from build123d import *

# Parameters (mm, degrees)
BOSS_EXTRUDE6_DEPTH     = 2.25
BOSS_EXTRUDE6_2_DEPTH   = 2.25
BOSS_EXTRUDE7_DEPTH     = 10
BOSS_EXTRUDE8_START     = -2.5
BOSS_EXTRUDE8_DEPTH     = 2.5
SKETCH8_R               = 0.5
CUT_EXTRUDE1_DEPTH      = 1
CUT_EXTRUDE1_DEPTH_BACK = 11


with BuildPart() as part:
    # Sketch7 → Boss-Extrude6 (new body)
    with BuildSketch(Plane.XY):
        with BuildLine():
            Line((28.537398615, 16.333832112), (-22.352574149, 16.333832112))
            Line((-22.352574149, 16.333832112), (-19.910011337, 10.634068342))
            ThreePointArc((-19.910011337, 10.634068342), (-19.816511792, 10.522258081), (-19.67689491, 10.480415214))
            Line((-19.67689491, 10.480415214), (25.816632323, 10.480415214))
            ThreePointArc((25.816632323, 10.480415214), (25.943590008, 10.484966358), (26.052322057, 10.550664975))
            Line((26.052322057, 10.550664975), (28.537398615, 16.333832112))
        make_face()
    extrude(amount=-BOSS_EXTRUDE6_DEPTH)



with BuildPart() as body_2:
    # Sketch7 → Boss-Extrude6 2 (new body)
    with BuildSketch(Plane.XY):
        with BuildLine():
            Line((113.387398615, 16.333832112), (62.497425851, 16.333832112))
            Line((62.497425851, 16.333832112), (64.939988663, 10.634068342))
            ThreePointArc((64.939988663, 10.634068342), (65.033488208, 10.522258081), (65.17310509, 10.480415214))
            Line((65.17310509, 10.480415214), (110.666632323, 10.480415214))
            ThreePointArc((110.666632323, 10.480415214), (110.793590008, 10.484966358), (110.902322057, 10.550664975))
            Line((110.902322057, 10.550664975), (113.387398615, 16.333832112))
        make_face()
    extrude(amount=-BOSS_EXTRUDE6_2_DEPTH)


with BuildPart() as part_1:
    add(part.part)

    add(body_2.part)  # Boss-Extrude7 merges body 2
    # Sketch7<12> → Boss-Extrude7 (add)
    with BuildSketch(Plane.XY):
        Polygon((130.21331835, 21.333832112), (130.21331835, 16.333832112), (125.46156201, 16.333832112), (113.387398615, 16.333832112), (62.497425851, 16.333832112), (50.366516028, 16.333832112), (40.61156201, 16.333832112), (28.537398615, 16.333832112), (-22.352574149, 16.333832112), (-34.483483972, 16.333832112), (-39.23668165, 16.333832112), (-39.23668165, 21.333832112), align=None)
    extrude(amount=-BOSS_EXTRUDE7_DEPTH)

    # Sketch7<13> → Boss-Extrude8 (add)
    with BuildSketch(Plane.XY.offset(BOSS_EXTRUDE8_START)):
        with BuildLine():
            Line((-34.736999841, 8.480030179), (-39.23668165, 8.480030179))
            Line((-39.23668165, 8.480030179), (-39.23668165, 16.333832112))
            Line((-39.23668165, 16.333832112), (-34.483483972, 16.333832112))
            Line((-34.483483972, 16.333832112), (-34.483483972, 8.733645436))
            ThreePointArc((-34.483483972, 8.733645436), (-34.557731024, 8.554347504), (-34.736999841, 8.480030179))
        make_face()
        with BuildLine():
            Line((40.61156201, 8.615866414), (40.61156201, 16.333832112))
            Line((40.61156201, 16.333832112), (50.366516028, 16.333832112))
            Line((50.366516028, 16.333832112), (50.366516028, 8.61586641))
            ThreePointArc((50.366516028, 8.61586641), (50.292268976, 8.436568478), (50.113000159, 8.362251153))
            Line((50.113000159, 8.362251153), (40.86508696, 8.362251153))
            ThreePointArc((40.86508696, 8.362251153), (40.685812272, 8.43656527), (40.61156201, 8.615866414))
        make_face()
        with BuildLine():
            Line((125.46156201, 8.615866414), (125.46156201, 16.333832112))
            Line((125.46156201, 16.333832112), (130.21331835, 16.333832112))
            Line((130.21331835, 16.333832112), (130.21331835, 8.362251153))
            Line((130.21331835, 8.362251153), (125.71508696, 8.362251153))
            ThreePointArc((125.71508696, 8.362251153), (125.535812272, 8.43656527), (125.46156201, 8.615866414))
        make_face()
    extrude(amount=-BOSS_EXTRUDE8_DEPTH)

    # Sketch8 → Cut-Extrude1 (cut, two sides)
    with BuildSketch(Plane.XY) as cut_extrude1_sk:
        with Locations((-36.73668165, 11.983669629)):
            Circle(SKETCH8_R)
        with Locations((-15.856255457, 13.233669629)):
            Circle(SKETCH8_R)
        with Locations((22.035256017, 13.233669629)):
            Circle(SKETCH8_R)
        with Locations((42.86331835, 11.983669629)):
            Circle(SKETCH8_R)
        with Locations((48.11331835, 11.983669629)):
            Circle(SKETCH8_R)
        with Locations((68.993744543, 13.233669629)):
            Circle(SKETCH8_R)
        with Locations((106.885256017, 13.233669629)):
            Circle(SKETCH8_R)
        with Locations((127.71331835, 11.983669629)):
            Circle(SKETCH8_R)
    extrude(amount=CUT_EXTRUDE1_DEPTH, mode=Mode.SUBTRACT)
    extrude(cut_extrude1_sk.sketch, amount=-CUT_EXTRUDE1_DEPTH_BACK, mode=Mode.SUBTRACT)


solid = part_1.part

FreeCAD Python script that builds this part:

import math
import FreeCAD as App
import Part
import Sketcher
from FreeCAD import Vector


def add_polygon(sketch, points):
    """Adds a closed chain of lines whose ends are joined by coincident constraints."""
    first, n = sketch.GeometryCount, len(points)
    for a, b in zip(points, points[1:] + points[:1]):
        sketch.addGeometry(Part.LineSegment(App.Vector(*a, 0), App.Vector(*b, 0)), False)
    for i in range(n):
        sketch.addConstraint(Sketcher.Constraint("Coincident", first + i, 2, first + (i + 1) % n, 1))

doc = App.newDocument("Part")
body = doc.addObject("PartDesign::Body", "Body")

# Sketch on XY plane
sketch1 = body.newObject("Sketcher::SketchObject", "Sketch")
sketch1.AttachmentSupport = (doc.getObject("XY_Plane"), [""])
sketch1.MapMode = "FlatFace"
sketch1.addGeometry(Part.LineSegment(Vector(28.54, 16.33, 0), Vector(-22.35, 16.33, 0)), False)
sketch1.addGeometry(Part.LineSegment(Vector(-22.35, 16.33, 0), Vector(-19.91, 10.63, 0)), False)
sketch1.addGeometry(Part.ArcOfCircle(Part.Circle(Vector(-19.68, 10.73, 0), Vector(0, 0, 1), 0.25), math.radians(-157), math.radians(-90)), False)
sketch1.addGeometry(Part.LineSegment(Vector(-19.68, 10.48, 0), Vector(25.82, 10.48, 0)), False)
sketch1.addGeometry(Part.ArcOfCircle(Part.Circle(Vector(25.87, 10.73, 0), Vector(0, 0, 1), 0.25), math.radians(-102), math.radians(-44)), False)
sketch1.addGeometry(Part.LineSegment(Vector(26.05, 10.55, 0), Vector(28.54, 16.33, 0)), False)
sketch1.addConstraint(Sketcher.Constraint("Coincident", 0, 2, 1, 1))
sketch1.addConstraint(Sketcher.Constraint("Tangent", 1, 2, 2, 1))
sketch1.addConstraint(Sketcher.Constraint("Coincident", 2, 2, 3, 1))
sketch1.addConstraint(Sketcher.Constraint("Coincident", 3, 2, 4, 1))
sketch1.addConstraint(Sketcher.Constraint("Coincident", 4, 2, 5, 1))
sketch1.addConstraint(Sketcher.Constraint("Coincident", 5, 2, 0, 1))
sketch1.addConstraint(Sketcher.Constraint("Horizontal", 0))
sketch1.addConstraint(Sketcher.Constraint("Horizontal", 3))
sketch1.addConstraint(Sketcher.Constraint("Radius", 2, 0.253508))
sketch1.addConstraint(Sketcher.Constraint("Radius", 4, 0.252939))
sketch1.addConstraint(Sketcher.Constraint("DistanceX", -1, 1, 5, 2, 28.537399))
sketch1.addConstraint(Sketcher.Constraint("DistanceY", 1, 2, 4, 3, 0.093298))
sketch1.addConstraint(Sketcher.Constraint("DistanceY", 4, 2, 4, 3, 0.176702))
sketch1.addConstraint(Sketcher.Constraint("Distance", 5, 6.294492))
sketch1.addConstraint(Sketcher.Constraint("DistanceX", 0, 2, 0, 1, 50.889973))
sketch1.addConstraint(Sketcher.Constraint("DistanceX", 3, 1, 3, 2, 45.493527))
sketch1.addConstraint(Sketcher.Constraint("DistanceX", -1, 1, 4, 3, 25.87134))
sketch1.addConstraint(Sketcher.Constraint("DistanceX", 1, 2, -1, 1, 19.910011))
sketch1.addConstraint(Sketcher.Constraint("DistanceY", -1, 1, 1, 2, 10.634068))
pad1 = body.newObject("PartDesign::Pad", "Pad")
pad1.Profile = sketch1
pad1.Length = 2.25
pad1.Reversed = True
body2 = doc.addObject("PartDesign::Body", "Body001")

# Sketch on XY plane
sketch2 = body2.newObject("Sketcher::SketchObject", "Sketch001")
sketch2.AttachmentSupport = (doc.getObject("XY_Plane001"), [""])
sketch2.MapMode = "FlatFace"
sketch2.addGeometry(Part.LineSegment(Vector(113.39, 16.33, 0), Vector(62.5, 16.33, 0)), False)
sketch2.addGeometry(Part.LineSegment(Vector(62.5, 16.33, 0), Vector(64.94, 10.63, 0)), False)
sketch2.addGeometry(Part.ArcOfCircle(Part.Circle(Vector(65.17, 10.73, 0), Vector(0, 0, 1), 0.25), math.radians(-157), math.radians(-90)), False)
sketch2.addGeometry(Part.LineSegment(Vector(65.17, 10.48, 0), Vector(110.67, 10.48, 0)), False)
sketch2.addGeometry(Part.ArcOfCircle(Part.Circle(Vector(110.72, 10.73, 0), Vector(0, 0, 1), 0.25), math.radians(-102), math.radians(-44)), False)
sketch2.addGeometry(Part.LineSegment(Vector(110.9, 10.55, 0), Vector(113.39, 16.33, 0)), False)
sketch2.addConstraint(Sketcher.Constraint("Coincident", 0, 2, 1, 1))
sketch2.addConstraint(Sketcher.Constraint("Tangent", 1, 2, 2, 1))
sketch2.addConstraint(Sketcher.Constraint("Coincident", 2, 2, 3, 1))
sketch2.addConstraint(Sketcher.Constraint("Coincident", 3, 2, 4, 1))
sketch2.addConstraint(Sketcher.Constraint("Coincident", 4, 2, 5, 1))
sketch2.addConstraint(Sketcher.Constraint("Coincident", 5, 2, 0, 1))
sketch2.addConstraint(Sketcher.Constraint("Horizontal", 0))
sketch2.addConstraint(Sketcher.Constraint("Horizontal", 3))
sketch2.addConstraint(Sketcher.Constraint("Radius", 2, 0.253508))
sketch2.addConstraint(Sketcher.Constraint("Radius", 4, 0.252939))
sketch2.addConstraint(Sketcher.Constraint("DistanceX", -1, 1, 5, 2, 113.387399))
sketch2.addConstraint(Sketcher.Constraint("DistanceY", 1, 2, 4, 3, 0.093298))
sketch2.addConstraint(Sketcher.Constraint("DistanceY", 4, 2, 4, 3, 0.176702))
sketch2.addConstraint(Sketcher.Constraint("Distance", 5, 6.294492))
sketch2.addConstraint(Sketcher.Constraint("DistanceX", 0, 2, 0, 1, 50.889973))
sketch2.addConstraint(Sketcher.Constraint("DistanceX", 3, 1, 3, 2, 45.493527))
sketch2.addConstraint(Sketcher.Constraint("DistanceX", -1, 1, 4, 3, 110.72134))
sketch2.addConstraint(Sketcher.Constraint("DistanceX", -1, 1, 1, 2, 64.939989))
sketch2.addConstraint(Sketcher.Constraint("DistanceY", -1, 1, 1, 2, 10.634068))
pad2 = body2.newObject("PartDesign::Pad", "Pad001")
pad2.Profile = sketch2
pad2.Length = 2.25
pad2.Reversed = True
body.AllowCompound = True
doc.recompute()

boolean = body.newObject("PartDesign::Boolean", "Boolean")
boolean.Type = "Fuse"
boolean.addObjects([body2])

# Sketch on XY plane
sketch3 = body.newObject("Sketcher::SketchObject", "Sketch002")
sketch3.AttachmentSupport = (doc.getObject("XY_Plane"), [""])
sketch3.MapMode = "FlatFace"
add_polygon(sketch3, [(130, 16), (130, 21), (-39, 21), (-39, 16)])  # lines 0-3
sketch3.addConstraint(Sketcher.Constraint("Vertical", 0))
sketch3.addConstraint(Sketcher.Constraint("Horizontal", 1))
sketch3.addConstraint(Sketcher.Constraint("Vertical", 2))
sketch3.addConstraint(Sketcher.Constraint("Horizontal", 3))
sketch3.addConstraint(Sketcher.Constraint("DistanceY", 0, 1, 0, 2, 5.0))
sketch3.addConstraint(Sketcher.Constraint("DistanceX", 1, 2, 1, 1, 169.45))
sketch3.addConstraint(Sketcher.Constraint("DistanceX", -1, 1, 0, 2, 130.213318))
sketch3.addConstraint(Sketcher.Constraint("DistanceY", -1, 1, 0, 2, 21.333832))
pad3 = body.newObject("PartDesign::Pad", "Pad002")
pad3.Profile = sketch3
pad3.Length = 10
pad3.Reversed = True

# Sketch on XY plane
sketch4 = body.newObject("Sketcher::SketchObject", "Sketch003")
sketch4.AttachmentSupport = (doc.getObject("XY_Plane"), [""])
sketch4.MapMode = "FlatFace"
sketch4.AttachmentOffset = App.Placement(Vector(0, 0, -2.5), App.Rotation())
sketch4.addGeometry(Part.LineSegment(Vector(-39.24, 8.48, 0), Vector(-34.74, 8.48, 0)), False)
sketch4.addGeometry(Part.ArcOfCircle(Part.Circle(Vector(-34.74, 8.73, 0), Vector(0, 0, 1), 0.25), math.radians(-90), math.radians(0)), False)
sketch4.addGeometry(Part.LineSegment(Vector(-34.48, 8.73, 0), Vector(-34.48, 16.33, 0)), False)
sketch4.addGeometry(Part.LineSegment(Vector(-34.48, 16.33, 0), Vector(-39.24, 16.33, 0)), False)
sketch4.addGeometry(Part.LineSegment(Vector(-39.24, 16.33, 0), Vector(-39.24, 8.48, 0)), False)
sketch4.addGeometry(Part.LineSegment(Vector(40.61, 16.33, 0), Vector(40.61, 8.62, 0)), False)
sketch4.addGeometry(Part.ArcOfCircle(Part.Circle(Vector(40.87, 8.62, 0), Vector(0, 0, 1), 0.25), math.radians(180), math.radians(270)), False)
sketch4.addGeometry(Part.LineSegment(Vector(40.87, 8.36, 0), Vector(50.11, 8.36, 0)), False)
sketch4.addGeometry(Part.ArcOfCircle(Part.Circle(Vector(50.11, 8.62, 0), Vector(0, 0, 1), 0.25), math.radians(-90), math.radians(0)), False)
sketch4.addGeometry(Part.LineSegment(Vector(50.37, 8.62, 0), Vector(50.37, 16.33, 0)), False)
sketch4.addGeometry(Part.LineSegment(Vector(50.37, 16.33, 0), Vector(40.61, 16.33, 0)), False)
sketch4.addGeometry(Part.LineSegment(Vector(125.46, 16.33, 0), Vector(125.46, 8.62, 0)), False)
sketch4.addGeometry(Part.ArcOfCircle(Part.Circle(Vector(125.72, 8.62, 0), Vector(0, 0, 1), 0.25), math.radians(180), math.radians(270)), False)
sketch4.addGeometry(Part.LineSegment(Vector(125.72, 8.36, 0), Vector(130.21, 8.36, 0)), False)
sketch4.addGeometry(Part.LineSegment(Vector(130.21, 8.36, 0), Vector(130.21, 16.33, 0)), False)
sketch4.addGeometry(Part.LineSegment(Vector(130.21, 16.33, 0), Vector(125.46, 16.33, 0)), False)
sketch4.addConstraint(Sketcher.Constraint("Coincident", 0, 2, 1, 1))
sketch4.addConstraint(Sketcher.Constraint("Tangent", 1, 2, 2, 1))
sketch4.addConstraint(Sketcher.Constraint("Coincident", 2, 2, 3, 1))
sketch4.addConstraint(Sketcher.Constraint("Coincident", 3, 2, 4, 1))
sketch4.addConstraint(Sketcher.Constraint("Coincident", 4, 2, 0, 1))
sketch4.addConstraint(Sketcher.Constraint("Tangent", 5, 2, 6, 1))
sketch4.addConstraint(Sketcher.Constraint("Coincident", 6, 2, 7, 1))
sketch4.addConstraint(Sketcher.Constraint("Coincident", 7, 2, 8, 1))
sketch4.addConstraint(Sketcher.Constraint("Tangent", 8, 2, 9, 1))
sketch4.addConstraint(Sketcher.Constraint("Coincident", 9, 2, 10, 1))
sketch4.addConstraint(Sketcher.Constraint("Coincident", 10, 2, 5, 1))
sketch4.addConstraint(Sketcher.Constraint("Tangent", 11, 2, 12, 1))
sketch4.addConstraint(Sketcher.Constraint("Coincident", 12, 2, 13, 1))
sketch4.addConstraint(Sketcher.Constraint("Coincident", 13, 2, 14, 1))
sketch4.addConstraint(Sketcher.Constraint("Coincident", 14, 2, 15, 1))
sketch4.addConstraint(Sketcher.Constraint("Coincident", 15, 2, 11, 1))
sketch4.addConstraint(Sketcher.Constraint("Horizontal", 0))
sketch4.addConstraint(Sketcher.Constraint("Vertical", 2))
sketch4.addConstraint(Sketcher.Constraint("Horizontal", 3))
sketch4.addConstraint(Sketcher.Constraint("Vertical", 4))
sketch4.addConstraint(Sketcher.Constraint("Vertical", 5))
sketch4.addConstraint(Sketcher.Constraint("Horizontal", 7))
sketch4.addConstraint(Sketcher.Constraint("Vertical", 9))
sketch4.addConstraint(Sketcher.Constraint("Horizontal", 10))
sketch4.addConstraint(Sketcher.Constraint("Vertical", 11))
sketch4.addConstraint(Sketcher.Constraint("Horizontal", 13))
sketch4.addConstraint(Sketcher.Constraint("Vertical", 14))
sketch4.addConstraint(Sketcher.Constraint("Horizontal", 15))
sketch4.addConstraint(Sketcher.Constraint("Equal", 1, 6))
sketch4.addConstraint(Sketcher.Constraint("Equal", 6, 8))
sketch4.addConstraint(Sketcher.Constraint("Equal", 8, 12))
sketch4.addConstraint(Sketcher.Constraint("Horizontal", 8, 3, 12, 3))
sketch4.addConstraint(Sketcher.Constraint("Horizontal", 3, 2, 9, 2))
sketch4.addConstraint(Sketcher.Constraint("Horizontal", 10, 2, 14, 2))
sketch4.addConstraint(Sketcher.Constraint("DistanceX", 1, 3, 8, 3, 84.85))
sketch4.addConstraint(Sketcher.Constraint("DistanceX", 6, 3, 12, 3, 84.85))
sketch4.addConstraint(Sketcher.Constraint("DistanceY", 4, 2, 4, 1, 7.853802))
sketch4.addConstraint(Sketcher.Constraint("DistanceX", 0, 2, -1, 1, 34.737))
sketch4.addConstraint(Sketcher.Constraint("DistanceX", -1, 1, 7, 2, 50.113))
sketch4.addConstraint(Sketcher.Constraint("Radius", 1, 0.253615))
sketch4.addConstraint(Sketcher.Constraint("DistanceX", 0, 1, 0, 2, 4.499682))
sketch4.addConstraint(Sketcher.Constraint("DistanceX", 13, 1, 13, 2, 4.498231))
sketch4.addConstraint(Sketcher.Constraint("DistanceY", 14, 1, 14, 2, 7.971581))
sketch4.addConstraint(Sketcher.Constraint("DistanceX", 1, 3, -1, 1, 34.737099))
sketch4.addConstraint(Sketcher.Constraint("DistanceX", 7, 1, 7, 2, 9.247913))
sketch4.addConstraint(Sketcher.Constraint("DistanceX", 10, 2, 10, 1, 9.754954))
sketch4.addConstraint(Sketcher.Constraint("DistanceX", 15, 2, 15, 1, 4.751756))
sketch4.addConstraint(Sketcher.Constraint("DistanceY", -1, 1, 0, 2, 8.48003))
pad4 = body.newObject("PartDesign::Pad", "Pad003")
pad4.Profile = sketch4
pad4.Length = 2.5
pad4.Reversed = True

# Sketch on XY plane
sketch5 = body.newObject("Sketcher::SketchObject", "Sketch004")
sketch5.AttachmentSupport = (doc.getObject("XY_Plane"), [""])
sketch5.MapMode = "FlatFace"
sketch5.addGeometry(Part.Circle(Vector(-36.7, 12, 0), Vector(0, 0, 1), 0.5), False)
sketch5.addGeometry(Part.Circle(Vector(-15.9, 13.2, 0), Vector(0, 0, 1), 0.5), False)
sketch5.addGeometry(Part.Circle(Vector(22, 13.2, 0), Vector(0, 0, 1), 0.5), False)
sketch5.addGeometry(Part.Circle(Vector(42.9, 12, 0), Vector(0, 0, 1), 0.5), False)
sketch5.addGeometry(Part.Circle(Vector(48.1, 12, 0), Vector(0, 0, 1), 0.5), False)
sketch5.addGeometry(Part.Circle(Vector(69, 13.2, 0), Vector(0, 0, 1), 0.5), False)
sketch5.addGeometry(Part.Circle(Vector(106.9, 13.2, 0), Vector(0, 0, 1), 0.5), False)
sketch5.addGeometry(Part.Circle(Vector(127.7, 12, 0), Vector(0, 0, 1), 0.5), False)
sketch5.addConstraint(Sketcher.Constraint("Equal", 0, 1))
sketch5.addConstraint(Sketcher.Constraint("Equal", 1, 2))
sketch5.addConstraint(Sketcher.Constraint("Equal", 2, 3))
sketch5.addConstraint(Sketcher.Constraint("Equal", 3, 4))
sketch5.addConstraint(Sketcher.Constraint("Equal", 4, 5))
sketch5.addConstraint(Sketcher.Constraint("Equal", 5, 6))
sketch5.addConstraint(Sketcher.Constraint("Equal", 6, 7))
sketch5.addConstraint(Sketcher.Constraint("Horizontal", 1, 3, 2, 3))
sketch5.addConstraint(Sketcher.Constraint("Horizontal", 0, 3, 3, 3))
sketch5.addConstraint(Sketcher.Constraint("Horizontal", 3, 3, 4, 3))
sketch5.addConstraint(Sketcher.Constraint("Horizontal", 2, 3, 5, 3))
sketch5.addConstraint(Sketcher.Constraint("Horizontal", 5, 3, 6, 3))
sketch5.addConstraint(Sketcher.Constraint("Horizontal", 4, 3, 7, 3))
sketch5.addConstraint(Sketcher.Constraint("Diameter", 0, 1.0))
sketch5.addConstraint(Sketcher.Constraint("DistanceX", 0, 3, 3, 3, 79.6))
sketch5.addConstraint(Sketcher.Constraint("DistanceX", 4, 3, 7, 3, 79.6))
sketch5.addConstraint(Sketcher.Constraint("DistanceY", 0, 3, 1, 3, 1.25))
sketch5.addConstraint(Sketcher.Constraint("DistanceX", 3, 3, 4, 3, 5.25))
sketch5.addConstraint(Sketcher.Constraint("DistanceX", 1, 3, 5, 3, 84.85))
sketch5.addConstraint(Sketcher.Constraint("DistanceX", 2, 3, 6, 3, 84.85))
sketch5.addConstraint(Sketcher.Constraint("DistanceX", 0, 3, -1, 1, 36.736682))
sketch5.addConstraint(Sketcher.Constraint("DistanceY", -1, 1, 0, 3, 11.98367))
sketch5.addConstraint(Sketcher.Constraint("DistanceX", 1, 3, 2, 3, 37.891511))
sketch5.addConstraint(Sketcher.Constraint("DistanceX", 1, 3, -1, 1, 15.856255))
pocket1 = body.newObject("PartDesign::Pocket", "Pocket")
pocket1.Profile = sketch5
pocket1.Type = "ThroughAll"
pocket1.Midplane = True

doc.recompute()
